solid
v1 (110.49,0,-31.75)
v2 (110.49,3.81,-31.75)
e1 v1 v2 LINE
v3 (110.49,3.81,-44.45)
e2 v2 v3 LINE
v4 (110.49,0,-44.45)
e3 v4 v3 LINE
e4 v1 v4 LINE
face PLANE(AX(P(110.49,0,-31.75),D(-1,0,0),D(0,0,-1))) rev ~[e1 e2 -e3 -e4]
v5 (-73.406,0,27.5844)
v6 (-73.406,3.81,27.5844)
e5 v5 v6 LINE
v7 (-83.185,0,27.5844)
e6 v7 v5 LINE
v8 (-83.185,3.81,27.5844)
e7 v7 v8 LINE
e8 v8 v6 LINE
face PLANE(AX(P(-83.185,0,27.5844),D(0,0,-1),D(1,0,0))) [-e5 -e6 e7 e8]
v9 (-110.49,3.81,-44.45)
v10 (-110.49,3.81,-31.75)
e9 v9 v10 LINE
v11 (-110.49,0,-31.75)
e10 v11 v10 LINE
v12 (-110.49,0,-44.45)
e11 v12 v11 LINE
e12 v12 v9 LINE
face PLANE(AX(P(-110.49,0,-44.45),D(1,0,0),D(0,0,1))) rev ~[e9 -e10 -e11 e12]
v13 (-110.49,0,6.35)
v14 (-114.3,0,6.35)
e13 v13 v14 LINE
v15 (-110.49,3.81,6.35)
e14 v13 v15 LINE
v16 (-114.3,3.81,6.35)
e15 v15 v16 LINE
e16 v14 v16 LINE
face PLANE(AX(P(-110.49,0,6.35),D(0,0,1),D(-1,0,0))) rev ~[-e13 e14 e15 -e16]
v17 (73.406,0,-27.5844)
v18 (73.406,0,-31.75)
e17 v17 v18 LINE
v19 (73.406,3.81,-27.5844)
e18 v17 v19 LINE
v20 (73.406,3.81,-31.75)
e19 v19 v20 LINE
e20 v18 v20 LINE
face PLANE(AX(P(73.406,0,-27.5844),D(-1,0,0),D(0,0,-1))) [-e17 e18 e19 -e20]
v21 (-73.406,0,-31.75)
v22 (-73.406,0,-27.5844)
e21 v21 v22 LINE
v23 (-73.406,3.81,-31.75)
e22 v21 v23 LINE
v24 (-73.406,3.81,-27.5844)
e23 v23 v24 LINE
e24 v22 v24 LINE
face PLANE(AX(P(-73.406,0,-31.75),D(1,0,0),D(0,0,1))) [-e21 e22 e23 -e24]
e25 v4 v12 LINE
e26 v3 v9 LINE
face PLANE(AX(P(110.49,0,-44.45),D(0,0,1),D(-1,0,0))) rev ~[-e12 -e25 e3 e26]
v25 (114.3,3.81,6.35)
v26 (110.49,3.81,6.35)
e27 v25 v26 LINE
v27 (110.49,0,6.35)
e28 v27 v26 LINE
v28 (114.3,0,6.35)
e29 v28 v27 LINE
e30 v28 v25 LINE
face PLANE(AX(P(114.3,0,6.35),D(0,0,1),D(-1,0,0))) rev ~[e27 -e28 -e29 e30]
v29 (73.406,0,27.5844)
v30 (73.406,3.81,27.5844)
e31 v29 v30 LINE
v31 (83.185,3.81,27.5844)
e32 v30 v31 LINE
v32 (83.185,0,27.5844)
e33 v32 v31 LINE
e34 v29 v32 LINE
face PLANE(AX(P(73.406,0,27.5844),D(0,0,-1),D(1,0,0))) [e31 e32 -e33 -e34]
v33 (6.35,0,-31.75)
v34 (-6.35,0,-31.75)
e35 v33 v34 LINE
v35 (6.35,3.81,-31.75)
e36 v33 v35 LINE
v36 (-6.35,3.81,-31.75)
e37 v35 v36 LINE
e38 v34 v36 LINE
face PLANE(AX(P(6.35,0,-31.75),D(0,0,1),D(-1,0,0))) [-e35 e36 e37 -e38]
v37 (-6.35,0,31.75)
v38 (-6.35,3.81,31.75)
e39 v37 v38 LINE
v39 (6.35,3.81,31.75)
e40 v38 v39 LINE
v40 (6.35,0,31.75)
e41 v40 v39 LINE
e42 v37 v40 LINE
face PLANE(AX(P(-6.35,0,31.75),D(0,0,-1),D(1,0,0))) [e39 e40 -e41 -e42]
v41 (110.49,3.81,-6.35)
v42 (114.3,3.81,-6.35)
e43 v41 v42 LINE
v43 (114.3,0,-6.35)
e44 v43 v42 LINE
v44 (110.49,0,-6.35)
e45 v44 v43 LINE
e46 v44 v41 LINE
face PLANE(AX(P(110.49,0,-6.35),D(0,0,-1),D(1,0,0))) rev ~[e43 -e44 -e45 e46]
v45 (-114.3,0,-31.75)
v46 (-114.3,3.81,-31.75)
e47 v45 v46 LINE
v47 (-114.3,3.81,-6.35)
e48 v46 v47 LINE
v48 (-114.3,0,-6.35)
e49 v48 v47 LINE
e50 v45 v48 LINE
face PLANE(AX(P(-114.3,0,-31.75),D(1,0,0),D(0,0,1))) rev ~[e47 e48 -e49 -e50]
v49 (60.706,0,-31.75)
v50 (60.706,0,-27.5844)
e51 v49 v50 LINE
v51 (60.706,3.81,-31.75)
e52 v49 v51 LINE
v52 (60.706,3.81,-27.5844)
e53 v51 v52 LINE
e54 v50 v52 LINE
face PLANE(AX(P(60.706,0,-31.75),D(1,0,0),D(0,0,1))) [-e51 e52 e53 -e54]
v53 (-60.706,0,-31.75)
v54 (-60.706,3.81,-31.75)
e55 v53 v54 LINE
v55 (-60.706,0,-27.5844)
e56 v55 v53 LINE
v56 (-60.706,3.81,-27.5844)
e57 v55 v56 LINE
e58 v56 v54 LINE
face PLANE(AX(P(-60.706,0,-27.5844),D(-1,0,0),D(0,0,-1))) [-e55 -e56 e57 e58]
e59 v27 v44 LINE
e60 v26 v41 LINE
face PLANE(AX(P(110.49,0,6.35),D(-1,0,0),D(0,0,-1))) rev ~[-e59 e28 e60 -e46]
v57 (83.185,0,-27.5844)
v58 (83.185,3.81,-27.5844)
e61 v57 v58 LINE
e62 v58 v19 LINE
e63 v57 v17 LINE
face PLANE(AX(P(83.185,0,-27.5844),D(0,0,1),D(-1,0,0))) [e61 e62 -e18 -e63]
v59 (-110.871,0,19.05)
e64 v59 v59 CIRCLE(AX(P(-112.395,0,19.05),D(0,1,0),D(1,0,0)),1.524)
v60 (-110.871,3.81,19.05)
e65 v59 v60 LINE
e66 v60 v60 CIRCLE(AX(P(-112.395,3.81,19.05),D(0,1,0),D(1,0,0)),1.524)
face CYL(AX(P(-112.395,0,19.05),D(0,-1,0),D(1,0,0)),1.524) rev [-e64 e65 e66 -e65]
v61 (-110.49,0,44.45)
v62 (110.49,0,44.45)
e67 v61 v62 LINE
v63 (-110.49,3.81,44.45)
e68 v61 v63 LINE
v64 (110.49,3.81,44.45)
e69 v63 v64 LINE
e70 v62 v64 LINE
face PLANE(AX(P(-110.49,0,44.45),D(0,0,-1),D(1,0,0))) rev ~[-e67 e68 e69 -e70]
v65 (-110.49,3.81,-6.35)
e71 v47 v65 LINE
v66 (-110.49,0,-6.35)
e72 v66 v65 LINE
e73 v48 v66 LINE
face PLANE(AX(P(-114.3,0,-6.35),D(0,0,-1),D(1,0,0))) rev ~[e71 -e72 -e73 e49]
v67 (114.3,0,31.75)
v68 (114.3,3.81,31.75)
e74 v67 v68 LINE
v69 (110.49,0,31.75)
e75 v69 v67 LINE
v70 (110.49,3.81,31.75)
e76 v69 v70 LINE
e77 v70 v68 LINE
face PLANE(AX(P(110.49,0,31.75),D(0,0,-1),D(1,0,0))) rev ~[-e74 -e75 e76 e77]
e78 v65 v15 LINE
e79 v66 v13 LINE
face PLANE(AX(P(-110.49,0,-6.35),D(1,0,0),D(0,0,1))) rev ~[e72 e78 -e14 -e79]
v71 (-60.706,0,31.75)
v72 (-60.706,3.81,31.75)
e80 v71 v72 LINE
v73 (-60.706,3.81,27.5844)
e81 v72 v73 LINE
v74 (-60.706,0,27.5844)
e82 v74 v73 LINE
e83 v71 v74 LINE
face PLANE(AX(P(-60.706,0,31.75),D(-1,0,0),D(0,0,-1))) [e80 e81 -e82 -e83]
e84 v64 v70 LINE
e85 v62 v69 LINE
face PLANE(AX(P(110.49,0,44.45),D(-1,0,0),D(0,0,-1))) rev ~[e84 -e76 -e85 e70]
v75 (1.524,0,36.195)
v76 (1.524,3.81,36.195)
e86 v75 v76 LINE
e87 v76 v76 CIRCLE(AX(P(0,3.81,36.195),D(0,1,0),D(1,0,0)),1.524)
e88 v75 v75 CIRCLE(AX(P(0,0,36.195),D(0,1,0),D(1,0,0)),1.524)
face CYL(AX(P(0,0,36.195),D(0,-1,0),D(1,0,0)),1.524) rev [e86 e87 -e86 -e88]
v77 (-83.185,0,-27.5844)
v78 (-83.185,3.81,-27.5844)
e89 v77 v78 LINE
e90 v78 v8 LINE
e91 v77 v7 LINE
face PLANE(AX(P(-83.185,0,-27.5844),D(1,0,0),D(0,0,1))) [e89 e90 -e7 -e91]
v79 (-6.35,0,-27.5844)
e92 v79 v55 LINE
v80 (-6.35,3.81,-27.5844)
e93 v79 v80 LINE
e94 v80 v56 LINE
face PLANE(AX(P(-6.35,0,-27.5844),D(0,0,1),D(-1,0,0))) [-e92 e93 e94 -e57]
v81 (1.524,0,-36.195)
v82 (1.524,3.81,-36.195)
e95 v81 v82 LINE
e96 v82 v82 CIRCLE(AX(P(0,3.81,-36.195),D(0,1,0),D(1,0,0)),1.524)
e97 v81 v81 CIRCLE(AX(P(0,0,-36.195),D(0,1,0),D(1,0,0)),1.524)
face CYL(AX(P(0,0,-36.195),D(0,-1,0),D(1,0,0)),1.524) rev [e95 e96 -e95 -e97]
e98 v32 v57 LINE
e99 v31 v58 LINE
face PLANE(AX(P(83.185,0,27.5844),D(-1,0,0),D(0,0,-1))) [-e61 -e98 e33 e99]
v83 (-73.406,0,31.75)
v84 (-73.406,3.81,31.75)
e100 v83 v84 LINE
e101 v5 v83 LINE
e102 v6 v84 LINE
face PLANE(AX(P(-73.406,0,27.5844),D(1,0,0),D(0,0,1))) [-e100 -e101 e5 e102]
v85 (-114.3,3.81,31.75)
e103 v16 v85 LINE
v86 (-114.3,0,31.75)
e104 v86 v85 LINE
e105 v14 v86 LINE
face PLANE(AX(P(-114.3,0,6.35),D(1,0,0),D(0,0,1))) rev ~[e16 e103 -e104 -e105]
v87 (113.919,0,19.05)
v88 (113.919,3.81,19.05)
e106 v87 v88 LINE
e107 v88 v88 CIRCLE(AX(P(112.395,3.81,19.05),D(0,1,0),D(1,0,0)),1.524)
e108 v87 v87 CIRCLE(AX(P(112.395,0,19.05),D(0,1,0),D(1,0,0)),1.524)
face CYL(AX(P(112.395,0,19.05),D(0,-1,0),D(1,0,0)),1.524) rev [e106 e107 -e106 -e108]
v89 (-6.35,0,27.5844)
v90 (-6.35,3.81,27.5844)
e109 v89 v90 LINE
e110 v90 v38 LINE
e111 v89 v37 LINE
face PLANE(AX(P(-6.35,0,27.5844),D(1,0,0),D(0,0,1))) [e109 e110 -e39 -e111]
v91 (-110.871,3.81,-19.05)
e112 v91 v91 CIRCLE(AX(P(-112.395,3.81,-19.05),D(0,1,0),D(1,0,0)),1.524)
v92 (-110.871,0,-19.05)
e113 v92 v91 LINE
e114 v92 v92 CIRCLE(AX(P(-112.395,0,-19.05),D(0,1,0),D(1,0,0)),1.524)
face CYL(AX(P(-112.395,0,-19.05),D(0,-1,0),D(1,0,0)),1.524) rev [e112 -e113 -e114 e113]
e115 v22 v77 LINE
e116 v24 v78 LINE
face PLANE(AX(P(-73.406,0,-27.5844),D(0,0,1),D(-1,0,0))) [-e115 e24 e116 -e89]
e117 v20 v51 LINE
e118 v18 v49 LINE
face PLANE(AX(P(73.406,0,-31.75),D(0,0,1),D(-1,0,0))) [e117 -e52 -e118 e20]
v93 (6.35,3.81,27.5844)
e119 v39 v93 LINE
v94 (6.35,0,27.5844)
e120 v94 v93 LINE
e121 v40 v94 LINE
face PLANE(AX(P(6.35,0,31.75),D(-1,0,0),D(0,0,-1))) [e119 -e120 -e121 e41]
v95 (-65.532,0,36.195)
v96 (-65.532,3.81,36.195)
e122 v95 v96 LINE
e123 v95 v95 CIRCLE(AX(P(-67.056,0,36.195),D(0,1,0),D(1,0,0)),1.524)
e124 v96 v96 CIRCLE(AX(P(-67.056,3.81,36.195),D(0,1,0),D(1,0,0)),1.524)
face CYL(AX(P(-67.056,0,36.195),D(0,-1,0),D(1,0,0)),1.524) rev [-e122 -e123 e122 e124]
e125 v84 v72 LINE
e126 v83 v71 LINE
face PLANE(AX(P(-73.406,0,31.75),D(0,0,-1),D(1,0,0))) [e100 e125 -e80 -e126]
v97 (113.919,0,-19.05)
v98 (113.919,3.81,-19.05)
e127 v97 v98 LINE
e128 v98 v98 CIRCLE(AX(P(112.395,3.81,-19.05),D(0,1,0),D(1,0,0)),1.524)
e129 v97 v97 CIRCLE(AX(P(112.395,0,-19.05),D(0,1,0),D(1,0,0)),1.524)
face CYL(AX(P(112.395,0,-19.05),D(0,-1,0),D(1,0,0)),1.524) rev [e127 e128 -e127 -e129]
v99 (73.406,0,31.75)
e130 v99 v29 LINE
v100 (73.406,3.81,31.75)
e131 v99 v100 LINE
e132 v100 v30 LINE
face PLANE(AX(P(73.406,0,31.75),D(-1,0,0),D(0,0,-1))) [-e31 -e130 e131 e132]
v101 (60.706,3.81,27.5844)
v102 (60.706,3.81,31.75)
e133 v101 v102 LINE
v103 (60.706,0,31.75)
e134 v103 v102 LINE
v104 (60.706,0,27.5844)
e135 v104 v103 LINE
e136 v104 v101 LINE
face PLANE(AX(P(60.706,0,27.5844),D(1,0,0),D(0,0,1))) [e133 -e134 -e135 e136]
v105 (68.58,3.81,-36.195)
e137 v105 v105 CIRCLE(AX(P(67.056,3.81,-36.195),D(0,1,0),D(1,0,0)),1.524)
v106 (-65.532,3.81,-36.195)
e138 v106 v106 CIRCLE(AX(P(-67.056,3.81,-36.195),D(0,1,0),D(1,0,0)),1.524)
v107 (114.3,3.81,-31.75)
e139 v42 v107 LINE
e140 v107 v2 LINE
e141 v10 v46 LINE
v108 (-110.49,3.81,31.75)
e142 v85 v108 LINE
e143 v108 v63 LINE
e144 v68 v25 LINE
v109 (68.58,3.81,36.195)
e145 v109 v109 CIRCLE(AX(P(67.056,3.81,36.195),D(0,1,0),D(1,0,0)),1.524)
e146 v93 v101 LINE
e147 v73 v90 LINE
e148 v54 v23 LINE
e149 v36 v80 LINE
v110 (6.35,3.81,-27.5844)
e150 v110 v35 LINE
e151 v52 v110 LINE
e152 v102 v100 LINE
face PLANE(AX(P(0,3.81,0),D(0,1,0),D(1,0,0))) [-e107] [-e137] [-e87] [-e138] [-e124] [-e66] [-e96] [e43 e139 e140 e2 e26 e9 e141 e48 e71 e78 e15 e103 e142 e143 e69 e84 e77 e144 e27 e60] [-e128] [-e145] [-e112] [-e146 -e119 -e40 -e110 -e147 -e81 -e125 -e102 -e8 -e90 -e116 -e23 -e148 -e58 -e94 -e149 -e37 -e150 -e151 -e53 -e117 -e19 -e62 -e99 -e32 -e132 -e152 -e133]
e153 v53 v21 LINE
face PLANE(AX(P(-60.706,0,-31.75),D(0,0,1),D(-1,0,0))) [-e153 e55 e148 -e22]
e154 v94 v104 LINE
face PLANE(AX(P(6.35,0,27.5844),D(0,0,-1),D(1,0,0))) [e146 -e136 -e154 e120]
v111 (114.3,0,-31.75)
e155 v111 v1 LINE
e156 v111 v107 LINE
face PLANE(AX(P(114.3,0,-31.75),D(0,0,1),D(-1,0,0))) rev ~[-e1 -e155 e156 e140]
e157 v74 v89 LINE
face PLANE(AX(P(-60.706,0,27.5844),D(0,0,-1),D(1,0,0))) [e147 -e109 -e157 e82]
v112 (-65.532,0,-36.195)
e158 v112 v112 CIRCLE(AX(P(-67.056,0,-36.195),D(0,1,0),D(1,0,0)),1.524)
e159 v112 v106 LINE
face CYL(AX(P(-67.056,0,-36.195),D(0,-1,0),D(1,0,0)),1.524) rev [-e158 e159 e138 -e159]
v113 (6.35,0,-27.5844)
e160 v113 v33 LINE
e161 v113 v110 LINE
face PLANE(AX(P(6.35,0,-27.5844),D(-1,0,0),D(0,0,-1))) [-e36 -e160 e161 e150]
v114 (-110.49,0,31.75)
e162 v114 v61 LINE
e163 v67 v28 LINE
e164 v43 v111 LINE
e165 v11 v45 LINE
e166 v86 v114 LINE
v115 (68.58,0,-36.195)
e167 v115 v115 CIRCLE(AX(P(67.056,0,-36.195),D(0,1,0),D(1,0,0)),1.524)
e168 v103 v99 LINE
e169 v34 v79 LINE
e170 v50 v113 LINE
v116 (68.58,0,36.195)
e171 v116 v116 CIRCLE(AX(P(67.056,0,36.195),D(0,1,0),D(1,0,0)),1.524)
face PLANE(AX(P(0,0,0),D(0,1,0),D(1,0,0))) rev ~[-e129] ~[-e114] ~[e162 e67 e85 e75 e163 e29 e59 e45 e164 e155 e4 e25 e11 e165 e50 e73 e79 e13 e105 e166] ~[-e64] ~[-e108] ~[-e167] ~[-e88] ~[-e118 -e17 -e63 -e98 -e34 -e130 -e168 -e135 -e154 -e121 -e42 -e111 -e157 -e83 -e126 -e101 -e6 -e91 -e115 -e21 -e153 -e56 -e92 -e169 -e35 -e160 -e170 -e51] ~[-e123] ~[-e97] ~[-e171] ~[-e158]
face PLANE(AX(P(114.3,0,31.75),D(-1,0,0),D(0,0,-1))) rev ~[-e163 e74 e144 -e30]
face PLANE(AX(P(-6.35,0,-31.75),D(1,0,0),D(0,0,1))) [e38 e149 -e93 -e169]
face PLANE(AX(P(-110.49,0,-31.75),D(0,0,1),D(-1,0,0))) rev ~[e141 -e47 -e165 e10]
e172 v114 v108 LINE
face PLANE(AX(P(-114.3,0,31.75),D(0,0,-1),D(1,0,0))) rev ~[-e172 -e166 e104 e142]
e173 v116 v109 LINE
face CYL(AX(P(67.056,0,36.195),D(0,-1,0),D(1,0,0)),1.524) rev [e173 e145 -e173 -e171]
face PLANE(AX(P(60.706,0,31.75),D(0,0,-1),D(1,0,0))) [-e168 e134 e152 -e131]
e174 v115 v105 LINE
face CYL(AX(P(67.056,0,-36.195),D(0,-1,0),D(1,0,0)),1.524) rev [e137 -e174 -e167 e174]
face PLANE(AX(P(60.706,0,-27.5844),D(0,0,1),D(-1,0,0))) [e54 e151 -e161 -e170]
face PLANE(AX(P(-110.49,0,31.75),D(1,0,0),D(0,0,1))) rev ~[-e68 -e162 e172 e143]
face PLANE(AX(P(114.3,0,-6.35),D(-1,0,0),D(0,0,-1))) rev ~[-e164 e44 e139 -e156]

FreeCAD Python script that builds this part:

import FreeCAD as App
import Part
import Sketcher

V = App.Vector
Q = App.Units.Quantity


def add_polygon(sketch, points):
    """Adds a closed chain of lines whose ends are joined by coincident constraints."""
    first, n = sketch.GeometryCount, len(points)
    for a, b in zip(points, points[1:] + points[:1]):
        sketch.addGeometry(Part.LineSegment(App.Vector(*a, 0), App.Vector(*b, 0)), False)
    for i in range(n):
        sketch.addConstraint(Sketcher.Constraint("Coincident", first + i, 2, first + (i + 1) % n, 1))

doc = App.newDocument("Part")
params = doc.addObject("Spreadsheet::Sheet", "Params")
for row, (alias, value) in enumerate([
    ("sketch1_diameter", "0.12 in"),
    ("sketch1_height", "1 in"),
    ("sketch1_width", "8.7 in"),
    ("sketch1_width2", "0.5 in"),
    ("sketch1_width3", "0.15 in"),
    ("pad1_length", "0.15 in"),
], start=1):
    params.set(f"A{row}", alias)
    params.set(f"B{row}", "=" + value)
    params.setAlias(f"B{row}", alias)

body = doc.addObject("PartDesign::Body", "Body")

# Sketch on XZ plane
sketch1 = doc.addObject("Sketcher::SketchObject", "Sketch")
body.addObject(sketch1)
sketch1.AttachmentSupport = (doc.XZ_Plane, [""])
sketch1.MapMode = "FlatFace"
add_polygon(sketch1, [(-110.5, 44.5), (110.5, 44.5), (110.5, 31.8), (114.3, 31.8), (114.3, 6.3), (110.5, 6.3), (110.5, -6.3), (114.3, -6.3), (114.3, -31.8), (110.5, -31.8), (110.5, -44.5), (-110.5, -44.5), (-110.5, -31.8), (-114.3, -31.8), (-114.3, -6.3), (-110.5, -6.3), (-110.5, 6.3), (-114.3, 6.3), (-114.3, 31.8), (-110.5, 31.8)])  # lines 0-19
sketch1.addGeometry(Part.Circle(V(-67.1, 36.2, 0), V(0, 0, 1), 1.5), False)  # 20
sketch1.addGeometry(Part.Circle(V(-112.4, 19.1, 0), V(0, 0, 1), 1.5), False)  # 21
sketch1.addGeometry(Part.Circle(V(0, 36.2, 0), V(0, 0, 1), 1.5), False)  # 22
sketch1.addGeometry(Part.Circle(V(67.1, 36.2, 0), V(0, 0, 1), 1.5), False)  # 23
sketch1.addGeometry(Part.Circle(V(112.4, 19.1, 0), V(0, 0, 1), 1.5), False)  # 24
sketch1.addGeometry(Part.Circle(V(-112.4, -19.1, 0), V(0, 0, 1), 1.5), False)  # 25
sketch1.addGeometry(Part.Circle(V(-67.1, -36.2, 0), V(0, 0, 1), 1.5), False)  # 26
add_polygon(sketch1, [(-73.4, 27.6), (-83.2, 27.6), (-83.2, -27.6), (-73.4, -27.6), (-73.4, -31.8), (-60.7, -31.8), (-60.7, -27.6), (-6.3, -27.6), (-6.3, -31.8), (6.3, -31.8), (6.3, -27.6), (60.7, -27.6), (60.7, -31.8), (73.4, -31.8), (73.4, -27.6), (83.2, -27.6), (83.2, 27.6), (73.4, 27.6), (73.4, 31.8), (60.7, 31.8), (60.7, 27.6), (6.3, 27.6), (6.3, 31.8), (-6.3, 31.8), (-6.3, 27.6), (-60.7, 27.6), (-60.7, 31.8), (-73.4, 31.8)])  # lines 27-54
sketch1.addGeometry(Part.Circle(V(0, -36.2, 0), V(0, 0, 1), 1.5), False)  # 55
sketch1.addGeometry(Part.Circle(V(112.4, -19.1, 0), V(0, 0, 1), 1.5), False)  # 56
sketch1.addGeometry(Part.Circle(V(67.1, -36.2, 0), V(0, 0, 1), 1.5), False)  # 57
sketch1.addConstraint(Sketcher.Constraint("Horizontal", 0))
sketch1.addConstraint(Sketcher.Constraint("Vertical", 1))
sketch1.addConstraint(Sketcher.Constraint("Horizontal", 2))
sketch1.addConstraint(Sketcher.Constraint("Vertical", 3))
sketch1.addConstraint(Sketcher.Constraint("Horizontal", 4))
sketch1.addConstraint(Sketcher.Constraint("Vertical", 5))
sketch1.addConstraint(Sketcher.Constraint("Horizontal", 6))
sketch1.addConstraint(Sketcher.Constraint("Vertical", 7))
sketch1.addConstraint(Sketcher.Constraint("Horizontal", 8))
sketch1.addConstraint(Sketcher.Constraint("Vertical", 9))
sketch1.addConstraint(Sketcher.Constraint("Horizontal", 10))
sketch1.addConstraint(Sketcher.Constraint("Vertical", 11))
sketch1.addConstraint(Sketcher.Constraint("Horizontal", 12))
sketch1.addConstraint(Sketcher.Constraint("Vertical", 13))
sketch1.addConstraint(Sketcher.Constraint("Horizontal", 14))
sketch1.addConstraint(Sketcher.Constraint("Vertical", 15))
sketch1.addConstraint(Sketcher.Constraint("Horizontal", 16))
sketch1.addConstraint(Sketcher.Constraint("Vertical", 17))
sketch1.addConstraint(Sketcher.Constraint("Horizontal", 18))
sketch1.addConstraint(Sketcher.Constraint("Vertical", 19))
sketch1.addConstraint(Sketcher.Constraint("Horizontal", 27))
sketch1.addConstraint(Sketcher.Constraint("Vertical", 28))
sketch1.addConstraint(Sketcher.Constraint("Horizontal", 29))
sketch1.addConstraint(Sketcher.Constraint("Vertical", 30))
sketch1.addConstraint(Sketcher.Constraint("Horizontal", 31))
sketch1.addConstraint(Sketcher.Constraint("Vertical", 32))
sketch1.addConstraint(Sketcher.Constraint("Horizontal", 33))
sketch1.addConstraint(Sketcher.Constraint("Vertical", 34))
sketch1.addConstraint(Sketcher.Constraint("Horizontal", 35))
sketch1.addConstraint(Sketcher.Constraint("Vertical", 36))
sketch1.addConstraint(Sketcher.Constraint("Horizontal", 37))
sketch1.addConstraint(Sketcher.Constraint("Vertical", 38))
sketch1.addConstraint(Sketcher.Constraint("Horizontal", 39))
sketch1.addConstraint(Sketcher.Constraint("Vertical", 40))
sketch1.addConstraint(Sketcher.Constraint("Horizontal", 41))
sketch1.addConstraint(Sketcher.Constraint("Vertical", 42))
sketch1.addConstraint(Sketcher.Constraint("Horizontal", 43))
sketch1.addConstraint(Sketcher.Constraint("Vertical", 44))
sketch1.addConstraint(Sketcher.Constraint("Horizontal", 45))
sketch1.addConstraint(Sketcher.Constraint("Vertical", 46))
sketch1.addConstraint(Sketcher.Constraint("Horizontal", 47))
sketch1.addConstraint(Sketcher.Constraint("Vertical", 48))
sketch1.addConstraint(Sketcher.Constraint("Horizontal", 49))
sketch1.addConstraint(Sketcher.Constraint("Vertical", 50))
sketch1.addConstraint(Sketcher.Constraint("Horizontal", 51))
sketch1.addConstraint(Sketcher.Constraint("Vertical", 52))
sketch1.addConstraint(Sketcher.Constraint("Horizontal", 53))
sketch1.addConstraint(Sketcher.Constraint("Vertical", 54))
sketch1.addConstraint(Sketcher.Constraint("Equal", 20, 21))
sketch1.addConstraint(Sketcher.Constraint("Equal", 21, 22))
sketch1.addConstraint(Sketcher.Constraint("Equal", 22, 23))
sketch1.addConstraint(Sketcher.Constraint("Equal", 23, 24))
sketch1.addConstraint(Sketcher.Constraint("Equal", 24, 25))
sketch1.addConstraint(Sketcher.Constraint("Equal", 25, 26))
sketch1.addConstraint(Sketcher.Constraint("Equal", 26, 55))
sketch1.addConstraint(Sketcher.Constraint("Equal", 55, 56))
sketch1.addConstraint(Sketcher.Constraint("Equal", 56, 57))
sketch1.addConstraint(Sketcher.Constraint("Symmetric", 24, 3, 25, 3, -1, 1))
sketch1.addConstraint(Sketcher.Constraint("Symmetric", 23, 3, 26, 3, -1, 1))
sketch1.addConstraint(Sketcher.Constraint("Symmetric", 22, 3, 55, 3, -1, 1))
sketch1.addConstraint(Sketcher.Constraint("Symmetric", 21, 3, 56, 3, -1, 1))
sketch1.addConstraint(Sketcher.Constraint("Symmetric", 20, 3, 57, 3, -1, 1))
sketch1.addConstraint(Sketcher.Constraint("Symmetric", 0, 2, 10, 2, -1, 1))
sketch1.addConstraint(Sketcher.Constraint("Symmetric", 2, 2, 12, 2, -1, 1))
sketch1.addConstraint(Sketcher.Constraint("Symmetric", 4, 2, 14, 2, -1, 1))
sketch1.addConstraint(Sketcher.Constraint("Symmetric", 6, 2, 16, 2, -1, 1))
sketch1.addConstraint(Sketcher.Constraint("Symmetric", 8, 2, 18, 2, -1, 1))
sketch1.addConstraint(Sketcher.Constraint("Symmetric", 27, 2, 41, 2, -1, 1))
sketch1.addConstraint(Sketcher.Constraint("Symmetric", 29, 2, 43, 2, -1, 1))
sketch1.addConstraint(Sketcher.Constraint("Symmetric", 31, 2, 45, 2, -1, 1))
sketch1.addConstraint(Sketcher.Constraint("Symmetric", 33, 2, 47, 2, -1, 1))
sketch1.addConstraint(Sketcher.Constraint("Symmetric", 35, 2, 49, 2, -1, 1))
sketch1.addConstraint(Sketcher.Constraint("Symmetric", 37, 2, 51, 2, -1, 1))
sketch1.addConstraint(Sketcher.Constraint("Symmetric", 39, 2, 53, 2, -1, 1))
sketch1.addConstraint(Sketcher.Constraint("Symmetric", 20, 3, 23, 3, -2))
sketch1.addConstraint(Sketcher.Constraint("Symmetric", 21, 3, 24, 3, -2))
sketch1.addConstraint(Sketcher.Constraint("Symmetric", 8, 2, 11, 2, -2))
sketch1.addConstraint(Sketcher.Constraint("Symmetric", 6, 2, 13, 2, -2))
sketch1.addConstraint(Sketcher.Constraint("Symmetric", 33, 2, 36, 2, -2))
sketch1.addConstraint(Sketcher.Constraint("Symmetric", 31, 2, 38, 2, -2))
sketch1.addConstraint(Sketcher.Constraint("Symmetric", 29, 2, 40, 2, -2))
sketch1.addConstraint(Sketcher.Constraint("PointOnObject", 22, 3, -2))
sketch1.addConstraint(Sketcher.Constraint("Horizontal", 20, 3, 22, 3))
sketch1.addConstraint(Sketcher.Constraint("Horizontal", 12, 2, 30, 2))
sketch1.addConstraint(Sketcher.Constraint("Horizontal", 29, 2, 32, 2))
sketch1.addConstraint(Sketcher.Constraint("Horizontal", 31, 2, 34, 2))
sketch1.addConstraint(Sketcher.Constraint("Vertical", 1, 2, 4, 2))
sketch1.addConstraint(Sketcher.Constraint("Equal", 31, 35))
sketch1.addConstraint(Sketcher.Constraint("Equal", 53, 1))
sketch1.addConstraint(Sketcher.Constraint("Equal", 1, 5))
sketch1.addConstraint(Sketcher.Constraint("Diameter", 20, Q("0.12 in")))
sketch1.addConstraint(Sketcher.Constraint("DistanceY", 3, 2, 3, 1, Q("1 in")))
sketch1.addConstraint(Sketcher.Constraint("DistanceX", 0, 1, 0, 2, Q("8.7 in")))
sketch1.addConstraint(Sketcher.Constraint("DistanceX", 31, 1, 31, 2, Q("0.5 in")))
sketch1.addConstraint(Sketcher.Constraint("DistanceY", 24, 3, 0, 2, Q("1 in")))
sketch1.addConstraint(Sketcher.Constraint("DistanceX", 2, 1, 2, 2, Q("0.15 in")))
sketch1.addConstraint(Sketcher.Constraint("DistanceX", 33, 1, 33, 2, Q("2.14 in")))
sketch1.addConstraint(Sketcher.Constraint("DistanceX", 27, 2, 27, 1, Q("0.385 in")))
sketch1.addConstraint(Sketcher.Constraint("DistanceY", 28, 2, 28, 1, Q("2.172 in")))
sketch1.addConstraint(Sketcher.Constraint("DistanceX", 20, 3, -1, 1, Q("2.64 in")))
sketch1.addConstraint(Sketcher.Constraint("DistanceX", 21, 3, 24, 3, Q("8.85 in")))
sketch1.addConstraint(Sketcher.Constraint("DistanceY", 26, 3, 20, 3, Q("2.85 in")))
sketch1.setExpression("Constraints[138]", "Params.sketch1_diameter")
sketch1.setExpression("Constraints[139]", "Params.sketch1_height")
sketch1.setExpression("Constraints[140]", "Params.sketch1_width")
sketch1.setExpression("Constraints[141]", "Params.sketch1_width2")
sketch1.setExpression("Constraints[143]", "Params.sketch1_width3")
pad1 = doc.addObject("PartDesign::Pad", "Pad")
body.addObject(pad1)
pad1.Profile = sketch1
pad1.setExpression("Length", "Params.pad1_length")
pad1.Reversed = True

doc.recompute()
